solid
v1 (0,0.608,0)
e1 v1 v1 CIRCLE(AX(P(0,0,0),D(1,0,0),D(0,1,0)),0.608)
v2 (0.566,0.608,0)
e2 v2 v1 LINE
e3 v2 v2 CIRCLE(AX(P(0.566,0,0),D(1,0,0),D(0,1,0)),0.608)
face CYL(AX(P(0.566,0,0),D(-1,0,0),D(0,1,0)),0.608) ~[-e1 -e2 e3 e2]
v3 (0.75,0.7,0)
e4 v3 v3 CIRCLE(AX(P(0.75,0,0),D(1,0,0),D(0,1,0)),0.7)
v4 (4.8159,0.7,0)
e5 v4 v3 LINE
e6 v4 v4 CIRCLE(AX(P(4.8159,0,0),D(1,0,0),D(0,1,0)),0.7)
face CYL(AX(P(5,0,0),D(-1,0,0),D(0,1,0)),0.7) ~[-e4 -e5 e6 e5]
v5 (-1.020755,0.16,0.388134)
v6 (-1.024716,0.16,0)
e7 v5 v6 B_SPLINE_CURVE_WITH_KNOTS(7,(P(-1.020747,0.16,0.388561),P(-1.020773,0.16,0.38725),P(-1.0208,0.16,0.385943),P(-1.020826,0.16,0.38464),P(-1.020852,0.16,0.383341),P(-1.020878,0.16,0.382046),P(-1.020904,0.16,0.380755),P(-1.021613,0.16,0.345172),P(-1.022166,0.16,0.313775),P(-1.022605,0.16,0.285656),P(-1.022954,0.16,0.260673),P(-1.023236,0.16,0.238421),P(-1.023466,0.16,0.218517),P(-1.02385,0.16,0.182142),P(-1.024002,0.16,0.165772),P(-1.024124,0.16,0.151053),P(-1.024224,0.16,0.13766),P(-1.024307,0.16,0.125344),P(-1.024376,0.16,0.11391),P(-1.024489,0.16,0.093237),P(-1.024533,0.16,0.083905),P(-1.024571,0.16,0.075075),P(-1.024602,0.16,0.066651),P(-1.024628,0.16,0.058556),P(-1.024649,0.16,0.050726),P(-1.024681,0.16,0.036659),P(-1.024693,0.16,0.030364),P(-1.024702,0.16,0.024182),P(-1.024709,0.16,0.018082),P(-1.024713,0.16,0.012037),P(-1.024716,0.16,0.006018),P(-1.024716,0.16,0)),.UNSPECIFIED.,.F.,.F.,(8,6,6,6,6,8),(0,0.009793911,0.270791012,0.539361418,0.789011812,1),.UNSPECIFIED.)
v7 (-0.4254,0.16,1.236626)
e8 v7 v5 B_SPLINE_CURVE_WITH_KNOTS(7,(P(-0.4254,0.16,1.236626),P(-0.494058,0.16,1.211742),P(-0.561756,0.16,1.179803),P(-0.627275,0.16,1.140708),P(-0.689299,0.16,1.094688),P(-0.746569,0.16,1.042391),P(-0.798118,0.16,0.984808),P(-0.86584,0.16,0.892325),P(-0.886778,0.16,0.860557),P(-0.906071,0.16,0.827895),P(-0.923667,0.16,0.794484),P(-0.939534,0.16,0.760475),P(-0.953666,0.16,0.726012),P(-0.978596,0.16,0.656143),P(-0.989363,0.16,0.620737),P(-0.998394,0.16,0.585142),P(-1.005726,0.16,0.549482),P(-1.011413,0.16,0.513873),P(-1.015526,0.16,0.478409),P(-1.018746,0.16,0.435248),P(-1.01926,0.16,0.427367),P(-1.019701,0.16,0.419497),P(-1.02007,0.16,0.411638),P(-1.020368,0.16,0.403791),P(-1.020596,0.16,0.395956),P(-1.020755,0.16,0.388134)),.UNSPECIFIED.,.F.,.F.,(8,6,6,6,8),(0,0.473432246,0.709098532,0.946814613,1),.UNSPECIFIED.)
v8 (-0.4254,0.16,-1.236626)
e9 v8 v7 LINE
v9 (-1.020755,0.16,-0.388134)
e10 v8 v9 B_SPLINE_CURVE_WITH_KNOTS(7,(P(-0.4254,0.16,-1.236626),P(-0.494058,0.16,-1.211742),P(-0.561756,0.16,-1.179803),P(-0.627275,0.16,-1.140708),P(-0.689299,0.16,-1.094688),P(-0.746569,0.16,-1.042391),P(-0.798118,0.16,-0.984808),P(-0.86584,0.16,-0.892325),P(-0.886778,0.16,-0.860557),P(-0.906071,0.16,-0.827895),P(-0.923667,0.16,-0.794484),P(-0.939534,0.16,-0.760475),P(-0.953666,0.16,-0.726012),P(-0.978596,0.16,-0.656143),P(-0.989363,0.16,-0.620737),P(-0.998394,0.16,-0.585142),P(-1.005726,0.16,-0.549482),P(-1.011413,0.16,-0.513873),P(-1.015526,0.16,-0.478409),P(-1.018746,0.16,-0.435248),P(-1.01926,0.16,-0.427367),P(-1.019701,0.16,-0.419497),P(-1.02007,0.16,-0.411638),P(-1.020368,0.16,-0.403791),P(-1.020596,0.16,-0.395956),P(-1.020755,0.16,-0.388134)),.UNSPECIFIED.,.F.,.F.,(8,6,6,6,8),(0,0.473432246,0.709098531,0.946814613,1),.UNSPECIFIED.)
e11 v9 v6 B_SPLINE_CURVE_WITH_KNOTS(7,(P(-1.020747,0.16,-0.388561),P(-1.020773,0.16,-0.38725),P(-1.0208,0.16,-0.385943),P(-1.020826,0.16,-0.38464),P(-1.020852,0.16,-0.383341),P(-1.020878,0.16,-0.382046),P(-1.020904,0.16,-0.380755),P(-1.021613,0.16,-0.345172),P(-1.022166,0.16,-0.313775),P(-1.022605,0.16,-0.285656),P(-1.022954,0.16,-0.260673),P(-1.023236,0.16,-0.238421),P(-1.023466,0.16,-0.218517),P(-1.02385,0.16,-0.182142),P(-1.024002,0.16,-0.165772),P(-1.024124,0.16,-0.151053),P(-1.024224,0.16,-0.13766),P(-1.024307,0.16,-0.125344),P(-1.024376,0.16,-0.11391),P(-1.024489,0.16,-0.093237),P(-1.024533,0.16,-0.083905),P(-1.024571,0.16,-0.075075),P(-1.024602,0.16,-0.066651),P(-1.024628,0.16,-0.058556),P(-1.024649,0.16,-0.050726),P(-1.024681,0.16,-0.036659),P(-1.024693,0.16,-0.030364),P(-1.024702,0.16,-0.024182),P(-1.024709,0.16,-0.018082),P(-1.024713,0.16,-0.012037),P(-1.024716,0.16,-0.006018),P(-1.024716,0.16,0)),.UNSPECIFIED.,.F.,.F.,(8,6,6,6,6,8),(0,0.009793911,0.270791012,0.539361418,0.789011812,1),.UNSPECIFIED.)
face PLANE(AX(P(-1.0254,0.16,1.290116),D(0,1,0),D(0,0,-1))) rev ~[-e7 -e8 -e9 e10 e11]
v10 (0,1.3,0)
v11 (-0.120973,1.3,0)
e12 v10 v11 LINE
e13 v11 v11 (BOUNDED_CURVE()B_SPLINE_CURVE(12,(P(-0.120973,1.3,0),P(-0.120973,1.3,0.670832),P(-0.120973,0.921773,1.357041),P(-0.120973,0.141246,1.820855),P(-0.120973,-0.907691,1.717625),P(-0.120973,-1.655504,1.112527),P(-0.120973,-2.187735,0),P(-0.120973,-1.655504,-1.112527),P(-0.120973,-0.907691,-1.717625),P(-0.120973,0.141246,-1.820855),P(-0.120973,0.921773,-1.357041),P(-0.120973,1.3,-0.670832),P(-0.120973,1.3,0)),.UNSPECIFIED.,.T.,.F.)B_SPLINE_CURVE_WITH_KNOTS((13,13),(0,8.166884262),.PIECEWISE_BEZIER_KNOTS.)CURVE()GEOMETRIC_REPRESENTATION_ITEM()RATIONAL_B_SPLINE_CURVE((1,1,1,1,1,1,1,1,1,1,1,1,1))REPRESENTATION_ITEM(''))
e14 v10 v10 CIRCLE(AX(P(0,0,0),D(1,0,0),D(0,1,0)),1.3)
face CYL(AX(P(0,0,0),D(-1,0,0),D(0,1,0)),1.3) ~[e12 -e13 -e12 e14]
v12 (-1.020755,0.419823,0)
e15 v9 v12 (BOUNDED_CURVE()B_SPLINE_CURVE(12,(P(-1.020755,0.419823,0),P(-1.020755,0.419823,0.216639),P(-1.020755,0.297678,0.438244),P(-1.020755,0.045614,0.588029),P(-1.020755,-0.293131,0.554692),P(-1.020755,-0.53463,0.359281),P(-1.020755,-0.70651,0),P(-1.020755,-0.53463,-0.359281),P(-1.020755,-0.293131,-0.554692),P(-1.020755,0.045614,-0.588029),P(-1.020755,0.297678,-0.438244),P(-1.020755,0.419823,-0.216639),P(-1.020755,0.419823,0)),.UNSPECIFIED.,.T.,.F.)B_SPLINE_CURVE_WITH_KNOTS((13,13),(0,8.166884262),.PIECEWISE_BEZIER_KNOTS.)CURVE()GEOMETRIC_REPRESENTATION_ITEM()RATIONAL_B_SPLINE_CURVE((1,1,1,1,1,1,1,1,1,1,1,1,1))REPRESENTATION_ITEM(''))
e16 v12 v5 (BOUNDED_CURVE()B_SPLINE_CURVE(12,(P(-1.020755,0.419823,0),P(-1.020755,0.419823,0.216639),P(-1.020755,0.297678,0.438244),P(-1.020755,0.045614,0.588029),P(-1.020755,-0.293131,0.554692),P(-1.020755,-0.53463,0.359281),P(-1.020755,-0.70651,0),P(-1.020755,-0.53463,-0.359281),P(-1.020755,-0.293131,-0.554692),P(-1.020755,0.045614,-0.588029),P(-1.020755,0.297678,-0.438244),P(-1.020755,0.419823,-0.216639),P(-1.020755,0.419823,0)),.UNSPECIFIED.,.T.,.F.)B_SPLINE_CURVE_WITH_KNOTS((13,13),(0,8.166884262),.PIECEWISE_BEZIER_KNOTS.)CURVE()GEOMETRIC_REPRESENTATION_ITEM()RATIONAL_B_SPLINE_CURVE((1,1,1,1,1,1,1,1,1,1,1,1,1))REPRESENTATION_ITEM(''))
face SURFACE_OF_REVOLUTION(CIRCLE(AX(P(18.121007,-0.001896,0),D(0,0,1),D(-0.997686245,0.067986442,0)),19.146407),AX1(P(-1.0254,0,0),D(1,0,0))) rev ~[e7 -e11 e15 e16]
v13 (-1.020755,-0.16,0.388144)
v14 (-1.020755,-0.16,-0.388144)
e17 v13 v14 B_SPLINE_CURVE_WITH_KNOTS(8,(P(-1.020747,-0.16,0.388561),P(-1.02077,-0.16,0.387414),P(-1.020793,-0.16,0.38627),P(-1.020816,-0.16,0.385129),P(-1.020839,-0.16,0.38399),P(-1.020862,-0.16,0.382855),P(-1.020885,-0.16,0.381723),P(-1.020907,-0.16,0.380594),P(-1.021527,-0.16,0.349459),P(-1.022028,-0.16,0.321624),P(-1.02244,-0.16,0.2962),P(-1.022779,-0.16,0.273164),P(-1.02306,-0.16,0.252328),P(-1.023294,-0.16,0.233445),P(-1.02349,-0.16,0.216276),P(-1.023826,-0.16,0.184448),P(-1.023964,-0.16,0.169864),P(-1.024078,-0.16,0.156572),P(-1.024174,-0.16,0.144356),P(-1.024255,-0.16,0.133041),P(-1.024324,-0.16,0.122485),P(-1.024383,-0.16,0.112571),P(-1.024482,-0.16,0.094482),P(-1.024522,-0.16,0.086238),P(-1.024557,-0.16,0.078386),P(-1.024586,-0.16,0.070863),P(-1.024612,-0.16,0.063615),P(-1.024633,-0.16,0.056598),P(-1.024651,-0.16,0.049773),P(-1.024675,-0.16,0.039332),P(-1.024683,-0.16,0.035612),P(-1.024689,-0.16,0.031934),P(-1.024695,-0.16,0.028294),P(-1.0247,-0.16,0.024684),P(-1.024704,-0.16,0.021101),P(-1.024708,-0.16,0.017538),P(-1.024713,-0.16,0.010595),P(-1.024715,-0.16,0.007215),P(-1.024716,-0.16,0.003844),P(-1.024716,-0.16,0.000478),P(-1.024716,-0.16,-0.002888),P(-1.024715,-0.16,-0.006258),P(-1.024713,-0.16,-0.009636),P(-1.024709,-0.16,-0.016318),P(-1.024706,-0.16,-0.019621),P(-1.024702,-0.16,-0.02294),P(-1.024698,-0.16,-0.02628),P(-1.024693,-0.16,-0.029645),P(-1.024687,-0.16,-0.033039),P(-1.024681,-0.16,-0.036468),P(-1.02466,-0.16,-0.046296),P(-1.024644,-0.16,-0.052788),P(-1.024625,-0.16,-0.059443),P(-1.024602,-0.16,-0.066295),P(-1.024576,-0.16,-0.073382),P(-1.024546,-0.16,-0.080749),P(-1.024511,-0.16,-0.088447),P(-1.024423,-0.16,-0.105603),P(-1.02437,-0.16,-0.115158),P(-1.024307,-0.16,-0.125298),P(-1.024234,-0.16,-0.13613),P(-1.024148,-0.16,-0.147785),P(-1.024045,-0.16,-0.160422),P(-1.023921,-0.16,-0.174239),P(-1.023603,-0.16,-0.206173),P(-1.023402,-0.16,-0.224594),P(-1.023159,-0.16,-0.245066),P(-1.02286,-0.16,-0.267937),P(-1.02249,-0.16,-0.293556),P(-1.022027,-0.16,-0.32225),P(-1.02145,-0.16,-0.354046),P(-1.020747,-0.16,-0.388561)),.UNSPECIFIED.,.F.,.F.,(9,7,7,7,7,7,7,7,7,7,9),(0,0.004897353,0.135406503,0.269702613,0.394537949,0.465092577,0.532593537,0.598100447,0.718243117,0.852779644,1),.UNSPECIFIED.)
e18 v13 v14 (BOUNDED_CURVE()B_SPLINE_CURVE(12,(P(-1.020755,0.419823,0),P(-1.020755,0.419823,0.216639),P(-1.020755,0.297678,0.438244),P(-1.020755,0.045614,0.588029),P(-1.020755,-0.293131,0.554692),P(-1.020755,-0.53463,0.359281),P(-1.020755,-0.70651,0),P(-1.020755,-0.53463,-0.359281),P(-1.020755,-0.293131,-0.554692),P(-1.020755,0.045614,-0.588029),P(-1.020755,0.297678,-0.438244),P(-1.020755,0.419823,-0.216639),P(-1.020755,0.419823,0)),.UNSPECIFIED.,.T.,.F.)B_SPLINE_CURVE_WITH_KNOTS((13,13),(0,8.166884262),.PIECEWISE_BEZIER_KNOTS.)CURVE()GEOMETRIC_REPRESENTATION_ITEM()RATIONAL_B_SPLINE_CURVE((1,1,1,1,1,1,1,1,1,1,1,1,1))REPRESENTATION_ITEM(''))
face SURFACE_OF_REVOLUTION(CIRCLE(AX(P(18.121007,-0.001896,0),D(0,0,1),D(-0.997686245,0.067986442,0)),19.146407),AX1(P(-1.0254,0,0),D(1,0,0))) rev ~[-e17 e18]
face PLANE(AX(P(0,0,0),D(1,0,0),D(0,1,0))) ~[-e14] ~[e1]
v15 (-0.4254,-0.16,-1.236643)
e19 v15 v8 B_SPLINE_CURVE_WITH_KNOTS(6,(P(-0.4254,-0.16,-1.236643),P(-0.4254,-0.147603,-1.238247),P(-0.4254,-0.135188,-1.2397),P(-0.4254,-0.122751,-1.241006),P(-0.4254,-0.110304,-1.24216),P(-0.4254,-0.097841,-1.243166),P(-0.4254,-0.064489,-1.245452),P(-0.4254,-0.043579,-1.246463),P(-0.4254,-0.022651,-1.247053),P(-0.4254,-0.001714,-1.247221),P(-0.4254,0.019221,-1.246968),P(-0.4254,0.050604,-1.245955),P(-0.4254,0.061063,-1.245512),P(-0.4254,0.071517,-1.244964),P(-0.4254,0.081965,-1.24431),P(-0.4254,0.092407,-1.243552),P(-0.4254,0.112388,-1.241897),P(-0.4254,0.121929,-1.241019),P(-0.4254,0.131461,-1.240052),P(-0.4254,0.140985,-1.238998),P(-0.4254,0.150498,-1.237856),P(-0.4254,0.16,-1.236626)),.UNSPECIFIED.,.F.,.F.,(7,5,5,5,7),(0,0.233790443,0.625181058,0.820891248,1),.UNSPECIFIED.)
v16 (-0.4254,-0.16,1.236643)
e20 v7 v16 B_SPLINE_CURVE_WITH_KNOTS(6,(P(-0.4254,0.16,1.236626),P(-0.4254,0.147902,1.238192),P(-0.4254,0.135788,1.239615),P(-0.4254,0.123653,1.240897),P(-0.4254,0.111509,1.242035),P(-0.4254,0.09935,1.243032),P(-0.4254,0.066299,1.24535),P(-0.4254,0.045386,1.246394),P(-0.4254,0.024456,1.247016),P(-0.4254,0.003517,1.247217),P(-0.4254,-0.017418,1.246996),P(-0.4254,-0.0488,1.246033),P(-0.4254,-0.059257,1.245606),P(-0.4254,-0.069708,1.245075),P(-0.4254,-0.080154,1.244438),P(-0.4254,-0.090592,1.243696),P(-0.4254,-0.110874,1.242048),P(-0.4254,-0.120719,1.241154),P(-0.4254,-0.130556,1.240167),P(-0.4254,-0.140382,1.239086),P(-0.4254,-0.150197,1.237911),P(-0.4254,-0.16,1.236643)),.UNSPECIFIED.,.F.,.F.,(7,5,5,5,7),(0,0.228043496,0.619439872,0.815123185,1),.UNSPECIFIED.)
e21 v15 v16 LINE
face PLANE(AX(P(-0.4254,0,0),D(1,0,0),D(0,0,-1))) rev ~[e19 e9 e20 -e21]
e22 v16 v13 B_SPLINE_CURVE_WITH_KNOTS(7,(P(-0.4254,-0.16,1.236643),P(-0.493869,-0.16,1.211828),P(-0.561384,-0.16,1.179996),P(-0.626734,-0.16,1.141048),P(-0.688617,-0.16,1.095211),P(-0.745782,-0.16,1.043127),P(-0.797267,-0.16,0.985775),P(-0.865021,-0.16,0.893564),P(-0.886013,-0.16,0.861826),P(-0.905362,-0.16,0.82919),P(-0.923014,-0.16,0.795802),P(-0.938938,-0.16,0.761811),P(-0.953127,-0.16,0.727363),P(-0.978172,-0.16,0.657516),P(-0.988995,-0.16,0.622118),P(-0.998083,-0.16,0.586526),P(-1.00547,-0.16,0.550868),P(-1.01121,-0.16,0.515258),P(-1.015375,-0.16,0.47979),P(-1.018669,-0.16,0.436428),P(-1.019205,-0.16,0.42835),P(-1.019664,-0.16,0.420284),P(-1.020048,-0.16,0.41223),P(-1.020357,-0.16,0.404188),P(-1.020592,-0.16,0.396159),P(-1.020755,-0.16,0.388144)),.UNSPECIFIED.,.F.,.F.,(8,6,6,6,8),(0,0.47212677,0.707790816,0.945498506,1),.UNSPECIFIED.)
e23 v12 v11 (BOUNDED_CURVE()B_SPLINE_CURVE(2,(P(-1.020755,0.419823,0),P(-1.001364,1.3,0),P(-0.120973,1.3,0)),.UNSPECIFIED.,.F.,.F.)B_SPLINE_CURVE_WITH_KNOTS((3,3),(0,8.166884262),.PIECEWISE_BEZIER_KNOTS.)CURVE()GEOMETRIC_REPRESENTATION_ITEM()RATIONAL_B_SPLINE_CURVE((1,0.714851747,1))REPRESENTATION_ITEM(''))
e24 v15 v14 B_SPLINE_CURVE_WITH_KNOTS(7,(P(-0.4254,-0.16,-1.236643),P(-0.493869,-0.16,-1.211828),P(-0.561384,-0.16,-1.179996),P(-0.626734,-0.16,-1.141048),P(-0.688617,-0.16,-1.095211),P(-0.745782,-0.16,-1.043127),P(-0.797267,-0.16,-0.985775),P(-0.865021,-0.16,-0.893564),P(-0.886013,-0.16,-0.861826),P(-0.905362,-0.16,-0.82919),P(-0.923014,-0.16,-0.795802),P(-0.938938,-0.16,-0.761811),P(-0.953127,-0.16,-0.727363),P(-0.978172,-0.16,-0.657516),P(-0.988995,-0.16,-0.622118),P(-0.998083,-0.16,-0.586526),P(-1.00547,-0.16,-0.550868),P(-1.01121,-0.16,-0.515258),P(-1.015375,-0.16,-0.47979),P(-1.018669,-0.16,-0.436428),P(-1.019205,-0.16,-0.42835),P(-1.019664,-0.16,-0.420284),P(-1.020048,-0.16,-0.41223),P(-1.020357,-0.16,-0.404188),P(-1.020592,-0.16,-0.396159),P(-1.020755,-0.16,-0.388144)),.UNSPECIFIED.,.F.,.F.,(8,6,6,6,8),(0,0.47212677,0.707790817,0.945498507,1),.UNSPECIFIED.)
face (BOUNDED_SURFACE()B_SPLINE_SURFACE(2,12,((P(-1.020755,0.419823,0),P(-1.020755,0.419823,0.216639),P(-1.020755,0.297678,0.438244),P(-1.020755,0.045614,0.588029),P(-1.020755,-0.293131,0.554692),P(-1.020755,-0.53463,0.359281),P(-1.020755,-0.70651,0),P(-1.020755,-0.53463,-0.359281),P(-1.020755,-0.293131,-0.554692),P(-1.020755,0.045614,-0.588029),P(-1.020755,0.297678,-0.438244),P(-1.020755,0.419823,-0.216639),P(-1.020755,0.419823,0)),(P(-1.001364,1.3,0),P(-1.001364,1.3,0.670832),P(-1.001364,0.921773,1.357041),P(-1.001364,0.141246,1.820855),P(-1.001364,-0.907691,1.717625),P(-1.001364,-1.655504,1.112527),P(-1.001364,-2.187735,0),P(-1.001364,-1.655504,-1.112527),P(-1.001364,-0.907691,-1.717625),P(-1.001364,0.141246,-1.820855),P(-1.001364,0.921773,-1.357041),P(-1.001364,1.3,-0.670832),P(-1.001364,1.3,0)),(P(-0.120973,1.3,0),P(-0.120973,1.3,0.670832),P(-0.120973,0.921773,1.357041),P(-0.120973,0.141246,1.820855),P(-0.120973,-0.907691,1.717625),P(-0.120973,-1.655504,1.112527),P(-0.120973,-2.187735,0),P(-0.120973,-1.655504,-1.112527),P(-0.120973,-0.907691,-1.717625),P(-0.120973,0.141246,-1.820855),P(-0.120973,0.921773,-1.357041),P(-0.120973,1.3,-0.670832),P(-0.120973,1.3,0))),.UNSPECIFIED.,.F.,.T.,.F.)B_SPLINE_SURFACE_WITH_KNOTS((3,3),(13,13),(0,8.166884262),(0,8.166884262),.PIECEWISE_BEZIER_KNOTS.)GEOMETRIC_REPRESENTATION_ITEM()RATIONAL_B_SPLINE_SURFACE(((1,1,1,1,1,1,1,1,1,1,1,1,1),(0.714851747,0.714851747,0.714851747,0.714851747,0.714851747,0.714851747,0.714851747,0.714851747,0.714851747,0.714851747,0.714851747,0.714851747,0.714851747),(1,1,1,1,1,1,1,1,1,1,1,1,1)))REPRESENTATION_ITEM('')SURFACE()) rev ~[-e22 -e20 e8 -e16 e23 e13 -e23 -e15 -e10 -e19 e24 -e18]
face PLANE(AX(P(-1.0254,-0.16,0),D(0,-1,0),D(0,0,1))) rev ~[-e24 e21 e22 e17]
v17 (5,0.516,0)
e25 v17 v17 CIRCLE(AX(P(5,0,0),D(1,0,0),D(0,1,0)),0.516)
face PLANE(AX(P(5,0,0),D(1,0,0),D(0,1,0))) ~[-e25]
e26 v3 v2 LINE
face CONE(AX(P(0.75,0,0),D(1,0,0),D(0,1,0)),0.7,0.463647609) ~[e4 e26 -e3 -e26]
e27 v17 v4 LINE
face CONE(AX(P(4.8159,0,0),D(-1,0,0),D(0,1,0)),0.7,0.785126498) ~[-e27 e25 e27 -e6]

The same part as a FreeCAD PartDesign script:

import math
import FreeCAD as App
import Part
import Sketcher

V = App.Vector
Q = App.Units.Quantity


def edges_at(feature, points):
    """Names of the edges that pass closest to the given points."""
    edges = feature.Shape.Edges
    near = lambda p: min(range(len(edges)), key=lambda i: edges[i].distToShape(Part.Vertex(*p))[0])
    return sorted({f"Edge{near(p) + 1}" for p in points})


def add_polygon(sketch, points):
    """Adds a closed chain of lines whose ends are joined by coincident constraints."""
    first, n = sketch.GeometryCount, len(points)
    for a, b in zip(points, points[1:] + points[:1]):
        sketch.addGeometry(Part.LineSegment(App.Vector(*a, 0), App.Vector(*b, 0)), False)
    for i in range(n):
        sketch.addConstraint(Sketcher.Constraint("Coincident", first + i, 2, first + (i + 1) % n, 1))

doc = App.newDocument("Part")
params = doc.addObject("Spreadsheet::Sheet", "Params")
for row, (alias, value) in enumerate([
    ("sketch1_width", "4.25 mm"),
    ("sketch1_height", "0.7 mm"),
    ("revolution_angle", "360 deg"),
    ("fillet_radius", "0.9 mm"),
    ("sketch2_width", "0.32 mm"),
    ("sketch2_height", "2.6 mm"),
    ("pocket1_length", "0.6 mm"),
    ("chamfer_size", "0.184 mm"),
    ("chamfer_size2", "0.1841 mm"),
], start=1):
    params.set(f"A{row}", alias)
    params.set(f"B{row}", "=" + value)
    params.setAlias(f"B{row}", alias)

body = doc.addObject("PartDesign::Body", "Body")

# Sketch on XY plane
sketch1 = doc.addObject("Sketcher::SketchObject", "Sketch")
body.addObject(sketch1)
sketch1.AttachmentSupport = (doc.XY_Plane, [""])
sketch1.MapMode = "FlatFace"
sketch1.addGeometry([
    Part.ArcOfCircle(Part.Circle(V(18.12, 0, 0), V(0, 0, 1), 19.15), math.radians(176.1), math.radians(179.99)),  # 0
    Part.LineSegment(V(-1.03, 0, 0), V(5, 0, 0)),  # 1
    Part.LineSegment(V(5, 0, 0), V(5, 0.7, 0)),  # 2
    Part.LineSegment(V(5, 0.7, 0), V(0.75, 0.7, 0)),  # 3
    Part.LineSegment(V(0.75, 0.7, 0), V(0.57, 0.61, 0)),  # 4
    Part.LineSegment(V(0.57, 0.61, 0), V(0, 0.61, 0)),  # 5
    Part.LineSegment(V(0, 0.61, 0), V(0, 1.3, 0)),  # 6
    Part.LineSegment(V(0, 1.3, 0), V(-0.98, 1.3, 0)),  # 7
], False)
sketch1.addConstraint([
    Sketcher.Constraint("Coincident", 0, 2, 1, 1),
    Sketcher.Constraint("Coincident", 1, 2, 2, 1),
    Sketcher.Constraint("Coincident", 2, 2, 3, 1),
    Sketcher.Constraint("Coincident", 3, 2, 4, 1),
    Sketcher.Constraint("Coincident", 4, 2, 5, 1),
    Sketcher.Constraint("Coincident", 5, 2, 6, 1),
    Sketcher.Constraint("Coincident", 6, 2, 7, 1),
    Sketcher.Constraint("Coincident", 7, 2, 0, 1),
    Sketcher.Constraint("Horizontal", 1),
    Sketcher.Constraint("Vertical", 2),
    Sketcher.Constraint("Horizontal", 3),
    Sketcher.Constraint("Horizontal", 5),
    Sketcher.Constraint("Vertical", 6),
    Sketcher.Constraint("Horizontal", 7),
    Sketcher.Constraint("PointOnObject", 0, 2, -1),
    Sketcher.Constraint("PointOnObject", 5, 2, -2),
    Sketcher.Constraint("DistanceX", -1, 1, 1, 2, Q("5 mm")),
    Sketcher.Constraint("DistanceX", 3, 2, 3, 1, Q("4.25 mm")),
    Sketcher.Constraint("DistanceY", 2, 1, 2, 2, Q("0.7 mm")),
    Sketcher.Constraint("DistanceX", 4, 2, 3, 2, Q("0.184 mm")),
    Sketcher.Constraint("DistanceX", 0, 2, -1, 1, Q("1.0254 mm")),
    Sketcher.Constraint("DistanceY", -1, 1, 6, 2, Q("1.3 mm")),
    Sketcher.Constraint("Radius", 0, Q("19.1464 mm")),
    Sketcher.Constraint("DistanceX", 7, 2, 7, 1, Q("0.981 mm")),
    Sketcher.Constraint("DistanceY", 6, 1, 6, 2, Q("0.692 mm")),
])
sketch1.setExpression("Constraints[17]", "Params.sketch1_width")
sketch1.setExpression("Constraints[18]", "Params.sketch1_height")
revolution = doc.addObject("PartDesign::Revolution", "Revolution")
body.addObject(revolution)
revolution.Profile = sketch1
revolution.ReferenceAxis = (sketch1, ["H_Axis"])
revolution.setExpression("Angle", "Params.revolution_angle")
doc.recompute()

fillet = doc.addObject("PartDesign::Fillet", "Fillet")
body.addObject(fillet)
fillet.Base = (revolution, edges_at(revolution, [(-0.981, -1.3, 0)]))
fillet.setExpression("Radius", "Params.fillet_radius")

# Sketch on YZ plane
sketch2 = doc.addObject("Sketcher::SketchObject", "Sketch001")
body.addObject(sketch2)
sketch2.AttachmentSupport = (doc.YZ_Plane, [""])
sketch2.MapMode = "FlatFace"
sketch2.AttachmentOffset = App.Placement(V(0, 0, -1.0254), App.Rotation())
add_polygon(sketch2, [(-0.16, -1.3), (0.16, -1.3), (0.16, 1.3), (-0.16, 1.3)])  # lines 0-3
sketch2.addConstraint([
    Sketcher.Constraint("Horizontal", 0),
    Sketcher.Constraint("Vertical", 1),
    Sketcher.Constraint("Horizontal", 2),
    Sketcher.Constraint("Vertical", 3),
    Sketcher.Constraint("Symmetric", 0, 2, 2, 2, -1, 1),
    Sketcher.Constraint("DistanceX", 0, 1, 0, 2, Q("0.32 mm")),
    Sketcher.Constraint("DistanceY", 1, 1, 1, 2, Q("2.6 mm")),
])
sketch2.setExpression("Constraints[9]", "Params.sketch2_width")
sketch2.setExpression("Constraints[10]", "Params.sketch2_height")
pocket1 = doc.addObject("PartDesign::Pocket", "Pocket")
body.addObject(pocket1)
pocket1.Profile = sketch2
pocket1.setExpression("Length", "Params.pocket1_length")
pocket1.Reversed = True
doc.recompute()

chamfer = doc.addObject("PartDesign::Chamfer", "Chamfer")
body.addObject(chamfer)
chamfer.Base = (pocket1, edges_at(pocket1, [(5, -0.7, 0)]))
chamfer.ChamferType = "Two distances"
chamfer.setExpression("Size", "Params.chamfer_size")
chamfer.setExpression("Size2", "Params.chamfer_size2")

doc.recompute()
